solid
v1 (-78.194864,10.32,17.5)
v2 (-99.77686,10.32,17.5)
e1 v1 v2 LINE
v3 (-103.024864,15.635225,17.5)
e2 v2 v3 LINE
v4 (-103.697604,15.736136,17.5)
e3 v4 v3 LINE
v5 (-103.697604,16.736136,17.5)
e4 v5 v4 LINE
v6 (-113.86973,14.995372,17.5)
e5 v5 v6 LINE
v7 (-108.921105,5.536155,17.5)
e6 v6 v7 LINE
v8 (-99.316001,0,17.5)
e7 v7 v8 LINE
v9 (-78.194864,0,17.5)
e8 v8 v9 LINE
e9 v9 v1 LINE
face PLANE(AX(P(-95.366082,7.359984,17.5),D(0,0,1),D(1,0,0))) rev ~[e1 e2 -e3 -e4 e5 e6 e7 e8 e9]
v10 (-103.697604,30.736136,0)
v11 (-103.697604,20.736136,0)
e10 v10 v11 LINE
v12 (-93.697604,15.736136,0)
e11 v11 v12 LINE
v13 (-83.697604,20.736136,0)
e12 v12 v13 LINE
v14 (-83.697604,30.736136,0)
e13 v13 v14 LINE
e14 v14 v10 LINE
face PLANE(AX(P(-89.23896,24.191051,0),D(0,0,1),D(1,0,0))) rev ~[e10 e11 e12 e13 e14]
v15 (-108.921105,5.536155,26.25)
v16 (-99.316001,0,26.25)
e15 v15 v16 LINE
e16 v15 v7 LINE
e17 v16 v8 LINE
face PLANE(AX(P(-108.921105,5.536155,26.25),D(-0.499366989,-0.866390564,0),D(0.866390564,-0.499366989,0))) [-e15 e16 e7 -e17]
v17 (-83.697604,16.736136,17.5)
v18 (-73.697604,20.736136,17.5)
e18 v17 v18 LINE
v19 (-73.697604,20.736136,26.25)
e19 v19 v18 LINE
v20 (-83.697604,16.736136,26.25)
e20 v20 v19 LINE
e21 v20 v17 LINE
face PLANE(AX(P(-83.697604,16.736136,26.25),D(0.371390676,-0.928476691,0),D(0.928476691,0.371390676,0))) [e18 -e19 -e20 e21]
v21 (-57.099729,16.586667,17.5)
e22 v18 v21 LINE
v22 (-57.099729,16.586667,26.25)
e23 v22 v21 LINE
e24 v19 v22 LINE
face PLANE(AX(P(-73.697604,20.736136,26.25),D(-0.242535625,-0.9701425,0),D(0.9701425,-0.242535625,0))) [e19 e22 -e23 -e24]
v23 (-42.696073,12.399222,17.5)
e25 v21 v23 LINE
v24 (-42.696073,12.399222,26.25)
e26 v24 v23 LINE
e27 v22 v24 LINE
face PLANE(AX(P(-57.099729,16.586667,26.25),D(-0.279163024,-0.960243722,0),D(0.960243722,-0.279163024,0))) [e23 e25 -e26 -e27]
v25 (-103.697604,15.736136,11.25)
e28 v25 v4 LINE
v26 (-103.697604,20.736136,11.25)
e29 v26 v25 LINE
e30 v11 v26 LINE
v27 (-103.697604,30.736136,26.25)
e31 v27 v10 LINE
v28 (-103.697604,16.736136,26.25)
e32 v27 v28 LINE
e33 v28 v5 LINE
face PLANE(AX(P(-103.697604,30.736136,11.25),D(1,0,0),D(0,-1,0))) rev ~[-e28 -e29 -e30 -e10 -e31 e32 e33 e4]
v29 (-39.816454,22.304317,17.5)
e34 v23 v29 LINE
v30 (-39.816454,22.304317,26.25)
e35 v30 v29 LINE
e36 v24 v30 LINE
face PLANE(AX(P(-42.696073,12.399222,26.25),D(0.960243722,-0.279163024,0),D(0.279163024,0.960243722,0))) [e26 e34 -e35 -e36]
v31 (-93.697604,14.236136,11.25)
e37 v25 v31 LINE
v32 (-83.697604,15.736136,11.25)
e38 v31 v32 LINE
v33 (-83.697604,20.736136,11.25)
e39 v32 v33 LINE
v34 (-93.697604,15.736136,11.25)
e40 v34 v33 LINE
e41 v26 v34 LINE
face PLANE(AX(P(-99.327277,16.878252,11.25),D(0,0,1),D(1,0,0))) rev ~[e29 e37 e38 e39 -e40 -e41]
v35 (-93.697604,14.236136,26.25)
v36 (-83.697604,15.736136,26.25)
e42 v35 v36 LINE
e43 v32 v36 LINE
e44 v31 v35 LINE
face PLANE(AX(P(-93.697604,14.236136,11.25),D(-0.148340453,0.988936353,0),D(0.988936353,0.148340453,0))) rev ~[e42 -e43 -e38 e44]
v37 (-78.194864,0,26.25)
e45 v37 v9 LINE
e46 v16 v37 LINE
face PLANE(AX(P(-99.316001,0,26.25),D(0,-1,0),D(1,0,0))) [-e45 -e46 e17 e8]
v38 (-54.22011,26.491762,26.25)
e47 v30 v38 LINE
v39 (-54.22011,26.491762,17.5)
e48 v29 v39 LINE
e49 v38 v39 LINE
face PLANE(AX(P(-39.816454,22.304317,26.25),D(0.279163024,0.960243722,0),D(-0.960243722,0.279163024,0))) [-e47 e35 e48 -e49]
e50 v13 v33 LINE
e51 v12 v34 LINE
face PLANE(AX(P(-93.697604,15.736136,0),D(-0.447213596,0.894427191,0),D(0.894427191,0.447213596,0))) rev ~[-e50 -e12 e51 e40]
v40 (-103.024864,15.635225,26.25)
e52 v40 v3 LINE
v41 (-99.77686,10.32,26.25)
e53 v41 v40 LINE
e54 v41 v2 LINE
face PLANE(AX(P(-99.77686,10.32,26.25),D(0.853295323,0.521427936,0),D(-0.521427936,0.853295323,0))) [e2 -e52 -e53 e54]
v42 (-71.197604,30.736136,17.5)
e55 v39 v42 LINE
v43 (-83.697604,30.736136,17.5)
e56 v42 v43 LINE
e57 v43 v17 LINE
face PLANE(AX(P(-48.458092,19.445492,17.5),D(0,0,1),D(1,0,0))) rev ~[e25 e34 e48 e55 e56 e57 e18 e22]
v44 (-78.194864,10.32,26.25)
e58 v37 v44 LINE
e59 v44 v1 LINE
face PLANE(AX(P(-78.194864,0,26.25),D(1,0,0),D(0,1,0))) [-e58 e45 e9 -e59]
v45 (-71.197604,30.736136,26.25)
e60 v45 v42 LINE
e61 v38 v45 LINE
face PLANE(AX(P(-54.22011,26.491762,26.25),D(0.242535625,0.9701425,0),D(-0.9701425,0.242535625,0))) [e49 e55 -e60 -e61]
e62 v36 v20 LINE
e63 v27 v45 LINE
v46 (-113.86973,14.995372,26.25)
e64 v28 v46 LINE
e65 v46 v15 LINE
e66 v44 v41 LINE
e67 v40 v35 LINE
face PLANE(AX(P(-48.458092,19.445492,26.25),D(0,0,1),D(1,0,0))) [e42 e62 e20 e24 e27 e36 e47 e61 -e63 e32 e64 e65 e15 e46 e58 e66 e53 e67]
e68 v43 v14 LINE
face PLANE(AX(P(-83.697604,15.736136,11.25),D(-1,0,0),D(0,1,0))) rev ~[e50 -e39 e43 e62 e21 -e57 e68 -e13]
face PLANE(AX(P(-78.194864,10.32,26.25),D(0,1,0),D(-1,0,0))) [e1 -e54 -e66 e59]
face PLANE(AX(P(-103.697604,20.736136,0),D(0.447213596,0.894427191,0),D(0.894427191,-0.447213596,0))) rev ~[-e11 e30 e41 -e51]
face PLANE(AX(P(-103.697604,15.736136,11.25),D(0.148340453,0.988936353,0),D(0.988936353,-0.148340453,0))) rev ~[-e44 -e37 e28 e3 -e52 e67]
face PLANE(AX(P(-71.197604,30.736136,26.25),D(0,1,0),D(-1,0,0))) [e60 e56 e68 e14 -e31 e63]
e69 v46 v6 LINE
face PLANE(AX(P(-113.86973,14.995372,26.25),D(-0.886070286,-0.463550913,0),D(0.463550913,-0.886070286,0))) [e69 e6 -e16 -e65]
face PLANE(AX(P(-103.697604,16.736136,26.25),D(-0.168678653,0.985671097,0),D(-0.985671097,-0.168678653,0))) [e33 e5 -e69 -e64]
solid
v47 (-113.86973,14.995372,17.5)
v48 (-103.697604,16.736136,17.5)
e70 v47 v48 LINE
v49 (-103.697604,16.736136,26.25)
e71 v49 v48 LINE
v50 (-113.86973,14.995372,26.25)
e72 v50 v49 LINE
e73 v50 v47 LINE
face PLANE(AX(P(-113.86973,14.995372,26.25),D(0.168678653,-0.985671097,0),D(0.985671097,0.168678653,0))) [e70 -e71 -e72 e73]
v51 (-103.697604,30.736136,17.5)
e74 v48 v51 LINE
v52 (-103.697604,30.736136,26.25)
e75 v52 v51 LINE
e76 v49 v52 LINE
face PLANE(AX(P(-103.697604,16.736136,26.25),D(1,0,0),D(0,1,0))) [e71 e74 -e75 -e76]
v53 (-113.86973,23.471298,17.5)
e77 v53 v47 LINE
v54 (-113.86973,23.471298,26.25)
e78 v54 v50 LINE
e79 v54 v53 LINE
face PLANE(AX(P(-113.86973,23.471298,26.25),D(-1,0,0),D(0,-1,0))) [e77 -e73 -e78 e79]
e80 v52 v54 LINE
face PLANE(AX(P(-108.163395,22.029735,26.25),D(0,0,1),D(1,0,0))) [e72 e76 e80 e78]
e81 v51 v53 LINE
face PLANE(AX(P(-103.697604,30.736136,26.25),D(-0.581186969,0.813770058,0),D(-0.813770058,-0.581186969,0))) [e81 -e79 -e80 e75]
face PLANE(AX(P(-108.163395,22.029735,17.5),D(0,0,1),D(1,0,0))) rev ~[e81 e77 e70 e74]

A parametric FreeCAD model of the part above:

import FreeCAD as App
import Part
import Sketcher
from FreeCAD import Vector

doc = App.newDocument("Part")
body = doc.addObject("PartDesign::Body", "Body")

# Sketch on XY plane
sketch1 = body.newObject("Sketcher::SketchObject", "Sketch")
sketch1.AttachmentSupport = (doc.getObject("XY_Plane"), [""])
sketch1.MapMode = "FlatFace"
sketch1.addGeometry([
    Part.LineSegment(Vector(-84, 31, 0), Vector(-104, 31, 0)),  # 0
    Part.LineSegment(Vector(-104, 31, 0), Vector(-104, 21, 0)),  # 1
    Part.LineSegment(Vector(-104, 21, 0), Vector(-94, 16, 0)),  # 2
    Part.LineSegment(Vector(-94, 16, 0), Vector(-84, 21, 0)),  # 3
    Part.LineSegment(Vector(-84, 21, 0), Vector(-84, 31, 0)),  # 4
], False)
sketch1.addConstraint([
    Sketcher.Constraint("Coincident", 0, 2, 1, 1),
    Sketcher.Constraint("Coincident", 1, 2, 2, 1),
    Sketcher.Constraint("Coincident", 2, 2, 3, 1),
    Sketcher.Constraint("Coincident", 3, 2, 4, 1),
    Sketcher.Constraint("Coincident", 4, 2, 0, 1),
    Sketcher.Constraint("Horizontal", 0),
    Sketcher.Constraint("Vertical", 1),
    Sketcher.Constraint("Vertical", 4),
    Sketcher.Constraint("Horizontal", 1, 2, 3, 2),
    Sketcher.Constraint("Equal", 2, 3),
    Sketcher.Constraint("DistanceX", 0, 2, 0, 1, 20.0),
    Sketcher.Constraint("DistanceY", 1, 2, 1, 1, 10.0),
    Sketcher.Constraint("DistanceY", 2, 2, 1, 2, 5.0),
    Sketcher.Constraint("DistanceX", 0, 2, -1, 1, 103.697604),
    Sketcher.Constraint("DistanceY", -1, 1, 0, 2, 30.736136),
])
pad1 = body.newObject("PartDesign::Pad", "Pad")
pad1.Profile = sketch1
pad1.Length = 11.25

# Sketch on XY plane
sketch2 = body.newObject("Sketcher::SketchObject", "Sketch001")
sketch2.AttachmentSupport = (doc.getObject("XY_Plane"), [""])
sketch2.MapMode = "FlatFace"
sketch2.AttachmentOffset = App.Placement(Vector(0, 0, 11.25), App.Rotation())
sketch2.addGeometry([
    Part.LineSegment(Vector(-104, 16, 0), Vector(-94, 14, 0)),  # 0
    Part.LineSegment(Vector(-94, 14, 0), Vector(-84, 16, 0)),  # 1
    Part.LineSegment(Vector(-84, 16, 0), Vector(-84, 31, 0)),  # 2
    Part.LineSegment(Vector(-84, 31, 0), Vector(-104, 31, 0)),  # 3
    Part.LineSegment(Vector(-104, 31, 0), Vector(-104, 16, 0)),  # 4
], False)
sketch2.addConstraint([
    Sketcher.Constraint("Coincident", 0, 2, 1, 1),
    Sketcher.Constraint("Coincident", 1, 2, 2, 1),
    Sketcher.Constraint("Coincident", 2, 2, 3, 1),
    Sketcher.Constraint("Coincident", 3, 2, 4, 1),
    Sketcher.Constraint("Coincident", 4, 2, 0, 1),
    Sketcher.Constraint("Vertical", 2),
    Sketcher.Constraint("Horizontal", 3),
    Sketcher.Constraint("Vertical", 4),
    Sketcher.Constraint("Horizontal", 1, 2, 4, 2),
    Sketcher.Constraint("Equal", 0, 1),
    Sketcher.Constraint("DistanceX", 3, 2, 3, 1, 20.0),
    Sketcher.Constraint("DistanceY", 2, 1, 2, 2, 15.0),
    Sketcher.Constraint("DistanceY", 0, 2, 1, 2, 1.5),
    Sketcher.Constraint("DistanceX", 0, 2, -1, 1, 93.697604),
    Sketcher.Constraint("DistanceY", -1, 1, 0, 2, 14.236136),
])
pad2 = body.newObject("PartDesign::Pad", "Pad001")
pad2.Profile = sketch2
pad2.Length = 15

# Sketch on XY plane
sketch3 = body.newObject("Sketcher::SketchObject", "Sketch002")
sketch3.AttachmentSupport = (doc.getObject("XY_Plane"), [""])
sketch3.MapMode = "FlatFace"
sketch3.AttachmentOffset = App.Placement(Vector(0, 0, 26.25), App.Rotation())
sketch3.addGeometry([
    Part.LineSegment(Vector(-71, 31, 0), Vector(-84, 31, 0)),
    Part.LineSegment(Vector(-84, 31, 0), Vector(-84, 17, 0)),
    Part.LineSegment(Vector(-84, 17, 0), Vector(-74, 21, 0)),
    Part.LineSegment(Vector(-74, 21, 0), Vector(-71, 31, 0)),
], False)
sketch3.addConstraint([
    Sketcher.Constraint("Coincident", 0, 2, 1, 1),
    Sketcher.Constraint("Coincident", 1, 2, 2, 1),
    Sketcher.Constraint("Coincident", 2, 2, 3, 1),
    Sketcher.Constraint("Coincident", 3, 2, 0, 1),
    Sketcher.Constraint("Horizontal", 0),
    Sketcher.Constraint("Vertical", 1),
    Sketcher.Constraint("DistanceY", 1, 2, 1, 1, 14.0),
    Sketcher.Constraint("DistanceX", 0, 2, 0, 1, 12.5),
    Sketcher.Constraint("DistanceX", 1, 2, 2, 2, 10.0),
    Sketcher.Constraint("DistanceY", 1, 2, 2, 2, 4.0),
    Sketcher.Constraint("DistanceX", 0, 2, -1, 1, 83.697604),
    Sketcher.Constraint("DistanceY", -1, 1, 0, 2, 30.736136),
])
pad3 = body.newObject("PartDesign::Pad", "Pad002")
pad3.Profile = sketch3
pad3.Length = 8.75
pad3.Reversed = True

# Sketch on XY plane
sketch4 = body.newObject("Sketcher::SketchObject", "Sketch003")
sketch4.AttachmentSupport = (doc.getObject("XY_Plane"), [""])
sketch4.MapMode = "FlatFace"
sketch4.AttachmentOffset = App.Placement(Vector(0, 0, 26.25), App.Rotation())
sketch4.addGeometry([
    Part.LineSegment(Vector(-71, 31, 0), Vector(-74, 21, 0)),
    Part.LineSegment(Vector(-74, 21, 0), Vector(-57, 17, 0)),
    Part.LineSegment(Vector(-57, 17, 0), Vector(-54, 26, 0)),
    Part.LineSegment(Vector(-54, 26, 0), Vector(-71, 31, 0)),
], False)
sketch4.addConstraint([
    Sketcher.Constraint("Coincident", 0, 2, 1, 1),
    Sketcher.Constraint("Coincident", 1, 2, 2, 1),
    Sketcher.Constraint("Coincident", 2, 2, 3, 1),
    Sketcher.Constraint("Coincident", 3, 2, 0, 1),
    Sketcher.Constraint("Perpendicular", 0, 1),
    Sketcher.Constraint("Parallel", 1, 3),
    Sketcher.Constraint("DistanceY", 0, 2, 3, 2, 10.0),
    Sketcher.Constraint("Distance", 3, 17.5),
    Sketcher.Constraint("DistanceX", 0, 2, 3, 2, 2.5),
    Sketcher.Constraint("Distance", 2, 10.315189),
    Sketcher.Constraint("DistanceX", 1, 2, -1, 1, 57.099729),
    Sketcher.Constraint("DistanceY", -1, 1, 0, 2, 20.736136),
])
pad4 = body.newObject("PartDesign::Pad", "Pad003")
pad4.Profile = sketch4
pad4.Length = 8.75
pad4.Reversed = True

# Sketch on XY plane
sketch5 = body.newObject("Sketcher::SketchObject", "Sketch004")
sketch5.AttachmentSupport = (doc.getObject("XY_Plane"), [""])
sketch5.MapMode = "FlatFace"
sketch5.AttachmentOffset = App.Placement(Vector(0, 0, 26.25), App.Rotation())
sketch5.addGeometry([
    Part.LineSegment(Vector(-104, 17, 0), Vector(-114, 15, 0)),  # 0
    Part.LineSegment(Vector(-114, 15, 0), Vector(-109, 6, 0)),  # 1
    Part.LineSegment(Vector(-109, 6, 0), Vector(-99, 0, 0)),  # 2
    Part.LineSegment(Vector(-99, 0, 0), Vector(-78, 0, 0)),  # 3
    Part.LineSegment(Vector(-78, 0, 0), Vector(-78, 10, 0)),  # 4
    Part.LineSegment(Vector(-78, 10, 0), Vector(-100, 10, 0)),  # 5
    Part.LineSegment(Vector(-100, 10, 0), Vector(-104, 17, 0)),  # 6
], False)
sketch5.addConstraint([
    Sketcher.Constraint("Coincident", 0, 2, 1, 1),
    Sketcher.Constraint("Coincident", 1, 2, 2, 1),
    Sketcher.Constraint("Coincident", 2, 2, 3, 1),
    Sketcher.Constraint("Coincident", 3, 2, 4, 1),
    Sketcher.Constraint("Coincident", 4, 2, 5, 1),
    Sketcher.Constraint("Coincident", 5, 2, 6, 1),
    Sketcher.Constraint("Coincident", 6, 2, 0, 1),
    Sketcher.Constraint("Horizontal", 3),
    Sketcher.Constraint("Vertical", 4),
    Sketcher.Constraint("Horizontal", 5),
    Sketcher.Constraint("PointOnObject", 2, 2, -1),
    Sketcher.Constraint("DistanceY", 4, 1, 4, 2, 10.32),
    Sketcher.Constraint("Distance", 0, 10.32),
    Sketcher.Constraint("DistanceX", 2, 2, -1, 1, 99.316001),
    Sketcher.Constraint("DistanceX", 1, 2, 6, 2, 5.223502),
    Sketcher.Constraint("Distance", 1, 10.675471),
    Sketcher.Constraint("DistanceX", 3, 1, 3, 2, 21.121137),
    Sketcher.Constraint("DistanceX", 5, 2, 5, 1, 21.581996),
    Sketcher.Constraint("DistanceX", 0, 2, -1, 1, 113.86973),
    Sketcher.Constraint("DistanceY", -1, 1, 0, 2, 14.995372),
    Sketcher.Constraint("DistanceX", 1, 2, 3, 2, 30.726241),
])
pad5 = body.newObject("PartDesign::Pad", "Pad004")
pad5.Profile = sketch5
pad5.Length = 8.75
pad5.Reversed = True

# Sketch on XY plane
sketch6 = body.newObject("Sketcher::SketchObject", "Sketch005")
sketch6.AttachmentSupport = (doc.getObject("XY_Plane"), [""])
sketch6.MapMode = "FlatFace"
sketch6.AttachmentOffset = App.Placement(Vector(0, 0, 26.25), App.Rotation())
sketch6.addGeometry([
    Part.LineSegment(Vector(-54, 26, 0), Vector(-57, 17, 0)),
    Part.LineSegment(Vector(-57, 17, 0), Vector(-43, 12, 0)),
    Part.LineSegment(Vector(-43, 12, 0), Vector(-40, 22, 0)),
    Part.LineSegment(Vector(-40, 22, 0), Vector(-54, 26, 0)),
], False)
sketch6.addConstraint([
    Sketcher.Constraint("Coincident", 0, 2, 1, 1),
    Sketcher.Constraint("Coincident", 1, 2, 2, 1),
    Sketcher.Constraint("Coincident", 2, 2, 3, 1),
    Sketcher.Constraint("Coincident", 3, 2, 0, 1),
    Sketcher.Constraint("Perpendicular", 0, 1),
    Sketcher.Constraint("Perpendicular", 1, 2),
    Sketcher.Constraint("Perpendicular", 2, 3),
    Sketcher.Constraint("Distance", 1, 15.0),
    Sketcher.Constraint("Distance", 0, 10.315189),
    Sketcher.Constraint("DistanceX", 0, 2, -1, 1, 57.099729),
    Sketcher.Constraint("DistanceY", -1, 1, 1, 2, 12.399222),
    Sketcher.Constraint("DistanceX", 3, 2, -1, 1, 54.22011),
])
pad6 = body.newObject("PartDesign::Pad", "Pad005")
pad6.Profile = sketch6
pad6.Length = 8.75
pad6.Reversed = True
body2 = doc.addObject("PartDesign::Body", "Body001")

# Sketch on XY plane
sketch7 = body2.newObject("Sketcher::SketchObject", "Sketch006")
sketch7.AttachmentSupport = (doc.getObject("XY_Plane001"), [""])
sketch7.MapMode = "FlatFace"
sketch7.AttachmentOffset = App.Placement(Vector(0, 0, 26.25), App.Rotation())
sketch7.addGeometry([
    Part.LineSegment(Vector(-104, 17, 0), Vector(-104, 31, 0)),
    Part.LineSegment(Vector(-104, 31, 0), Vector(-114, 23, 0)),
    Part.LineSegment(Vector(-114, 23, 0), Vector(-114, 15, 0)),
    Part.LineSegment(Vector(-114, 15, 0), Vector(-104, 17, 0)),
], False)
sketch7.addConstraint([
    Sketcher.Constraint("Coincident", 0, 2, 1, 1),
    Sketcher.Constraint("Coincident", 1, 2, 2, 1),
    Sketcher.Constraint("Coincident", 2, 2, 3, 1),
    Sketcher.Constraint("Coincident", 3, 2, 0, 1),
    Sketcher.Constraint("Vertical", 0),
    Sketcher.Constraint("Vertical", 2),
    Sketcher.Constraint("DistanceY", 0, 1, 0, 2, 14.0),
    Sketcher.Constraint("Distance", 1, 12.5),
    Sketcher.Constraint("Distance", 3, 10.32),
    Sketcher.Constraint("DistanceY", -1, 1, 1, 2, 23.471298),
    Sketcher.Constraint("DistanceY", 2, 2, 2, 1, 8.475927),
    Sketcher.Constraint("DistanceX", 1, 2, -1, 1, 113.86973),
])
pad7 = body2.newObject("PartDesign::Pad", "Pad006")
pad7.Profile = sketch7
pad7.Length = 8.75
pad7.Reversed = True

doc.recompute()
